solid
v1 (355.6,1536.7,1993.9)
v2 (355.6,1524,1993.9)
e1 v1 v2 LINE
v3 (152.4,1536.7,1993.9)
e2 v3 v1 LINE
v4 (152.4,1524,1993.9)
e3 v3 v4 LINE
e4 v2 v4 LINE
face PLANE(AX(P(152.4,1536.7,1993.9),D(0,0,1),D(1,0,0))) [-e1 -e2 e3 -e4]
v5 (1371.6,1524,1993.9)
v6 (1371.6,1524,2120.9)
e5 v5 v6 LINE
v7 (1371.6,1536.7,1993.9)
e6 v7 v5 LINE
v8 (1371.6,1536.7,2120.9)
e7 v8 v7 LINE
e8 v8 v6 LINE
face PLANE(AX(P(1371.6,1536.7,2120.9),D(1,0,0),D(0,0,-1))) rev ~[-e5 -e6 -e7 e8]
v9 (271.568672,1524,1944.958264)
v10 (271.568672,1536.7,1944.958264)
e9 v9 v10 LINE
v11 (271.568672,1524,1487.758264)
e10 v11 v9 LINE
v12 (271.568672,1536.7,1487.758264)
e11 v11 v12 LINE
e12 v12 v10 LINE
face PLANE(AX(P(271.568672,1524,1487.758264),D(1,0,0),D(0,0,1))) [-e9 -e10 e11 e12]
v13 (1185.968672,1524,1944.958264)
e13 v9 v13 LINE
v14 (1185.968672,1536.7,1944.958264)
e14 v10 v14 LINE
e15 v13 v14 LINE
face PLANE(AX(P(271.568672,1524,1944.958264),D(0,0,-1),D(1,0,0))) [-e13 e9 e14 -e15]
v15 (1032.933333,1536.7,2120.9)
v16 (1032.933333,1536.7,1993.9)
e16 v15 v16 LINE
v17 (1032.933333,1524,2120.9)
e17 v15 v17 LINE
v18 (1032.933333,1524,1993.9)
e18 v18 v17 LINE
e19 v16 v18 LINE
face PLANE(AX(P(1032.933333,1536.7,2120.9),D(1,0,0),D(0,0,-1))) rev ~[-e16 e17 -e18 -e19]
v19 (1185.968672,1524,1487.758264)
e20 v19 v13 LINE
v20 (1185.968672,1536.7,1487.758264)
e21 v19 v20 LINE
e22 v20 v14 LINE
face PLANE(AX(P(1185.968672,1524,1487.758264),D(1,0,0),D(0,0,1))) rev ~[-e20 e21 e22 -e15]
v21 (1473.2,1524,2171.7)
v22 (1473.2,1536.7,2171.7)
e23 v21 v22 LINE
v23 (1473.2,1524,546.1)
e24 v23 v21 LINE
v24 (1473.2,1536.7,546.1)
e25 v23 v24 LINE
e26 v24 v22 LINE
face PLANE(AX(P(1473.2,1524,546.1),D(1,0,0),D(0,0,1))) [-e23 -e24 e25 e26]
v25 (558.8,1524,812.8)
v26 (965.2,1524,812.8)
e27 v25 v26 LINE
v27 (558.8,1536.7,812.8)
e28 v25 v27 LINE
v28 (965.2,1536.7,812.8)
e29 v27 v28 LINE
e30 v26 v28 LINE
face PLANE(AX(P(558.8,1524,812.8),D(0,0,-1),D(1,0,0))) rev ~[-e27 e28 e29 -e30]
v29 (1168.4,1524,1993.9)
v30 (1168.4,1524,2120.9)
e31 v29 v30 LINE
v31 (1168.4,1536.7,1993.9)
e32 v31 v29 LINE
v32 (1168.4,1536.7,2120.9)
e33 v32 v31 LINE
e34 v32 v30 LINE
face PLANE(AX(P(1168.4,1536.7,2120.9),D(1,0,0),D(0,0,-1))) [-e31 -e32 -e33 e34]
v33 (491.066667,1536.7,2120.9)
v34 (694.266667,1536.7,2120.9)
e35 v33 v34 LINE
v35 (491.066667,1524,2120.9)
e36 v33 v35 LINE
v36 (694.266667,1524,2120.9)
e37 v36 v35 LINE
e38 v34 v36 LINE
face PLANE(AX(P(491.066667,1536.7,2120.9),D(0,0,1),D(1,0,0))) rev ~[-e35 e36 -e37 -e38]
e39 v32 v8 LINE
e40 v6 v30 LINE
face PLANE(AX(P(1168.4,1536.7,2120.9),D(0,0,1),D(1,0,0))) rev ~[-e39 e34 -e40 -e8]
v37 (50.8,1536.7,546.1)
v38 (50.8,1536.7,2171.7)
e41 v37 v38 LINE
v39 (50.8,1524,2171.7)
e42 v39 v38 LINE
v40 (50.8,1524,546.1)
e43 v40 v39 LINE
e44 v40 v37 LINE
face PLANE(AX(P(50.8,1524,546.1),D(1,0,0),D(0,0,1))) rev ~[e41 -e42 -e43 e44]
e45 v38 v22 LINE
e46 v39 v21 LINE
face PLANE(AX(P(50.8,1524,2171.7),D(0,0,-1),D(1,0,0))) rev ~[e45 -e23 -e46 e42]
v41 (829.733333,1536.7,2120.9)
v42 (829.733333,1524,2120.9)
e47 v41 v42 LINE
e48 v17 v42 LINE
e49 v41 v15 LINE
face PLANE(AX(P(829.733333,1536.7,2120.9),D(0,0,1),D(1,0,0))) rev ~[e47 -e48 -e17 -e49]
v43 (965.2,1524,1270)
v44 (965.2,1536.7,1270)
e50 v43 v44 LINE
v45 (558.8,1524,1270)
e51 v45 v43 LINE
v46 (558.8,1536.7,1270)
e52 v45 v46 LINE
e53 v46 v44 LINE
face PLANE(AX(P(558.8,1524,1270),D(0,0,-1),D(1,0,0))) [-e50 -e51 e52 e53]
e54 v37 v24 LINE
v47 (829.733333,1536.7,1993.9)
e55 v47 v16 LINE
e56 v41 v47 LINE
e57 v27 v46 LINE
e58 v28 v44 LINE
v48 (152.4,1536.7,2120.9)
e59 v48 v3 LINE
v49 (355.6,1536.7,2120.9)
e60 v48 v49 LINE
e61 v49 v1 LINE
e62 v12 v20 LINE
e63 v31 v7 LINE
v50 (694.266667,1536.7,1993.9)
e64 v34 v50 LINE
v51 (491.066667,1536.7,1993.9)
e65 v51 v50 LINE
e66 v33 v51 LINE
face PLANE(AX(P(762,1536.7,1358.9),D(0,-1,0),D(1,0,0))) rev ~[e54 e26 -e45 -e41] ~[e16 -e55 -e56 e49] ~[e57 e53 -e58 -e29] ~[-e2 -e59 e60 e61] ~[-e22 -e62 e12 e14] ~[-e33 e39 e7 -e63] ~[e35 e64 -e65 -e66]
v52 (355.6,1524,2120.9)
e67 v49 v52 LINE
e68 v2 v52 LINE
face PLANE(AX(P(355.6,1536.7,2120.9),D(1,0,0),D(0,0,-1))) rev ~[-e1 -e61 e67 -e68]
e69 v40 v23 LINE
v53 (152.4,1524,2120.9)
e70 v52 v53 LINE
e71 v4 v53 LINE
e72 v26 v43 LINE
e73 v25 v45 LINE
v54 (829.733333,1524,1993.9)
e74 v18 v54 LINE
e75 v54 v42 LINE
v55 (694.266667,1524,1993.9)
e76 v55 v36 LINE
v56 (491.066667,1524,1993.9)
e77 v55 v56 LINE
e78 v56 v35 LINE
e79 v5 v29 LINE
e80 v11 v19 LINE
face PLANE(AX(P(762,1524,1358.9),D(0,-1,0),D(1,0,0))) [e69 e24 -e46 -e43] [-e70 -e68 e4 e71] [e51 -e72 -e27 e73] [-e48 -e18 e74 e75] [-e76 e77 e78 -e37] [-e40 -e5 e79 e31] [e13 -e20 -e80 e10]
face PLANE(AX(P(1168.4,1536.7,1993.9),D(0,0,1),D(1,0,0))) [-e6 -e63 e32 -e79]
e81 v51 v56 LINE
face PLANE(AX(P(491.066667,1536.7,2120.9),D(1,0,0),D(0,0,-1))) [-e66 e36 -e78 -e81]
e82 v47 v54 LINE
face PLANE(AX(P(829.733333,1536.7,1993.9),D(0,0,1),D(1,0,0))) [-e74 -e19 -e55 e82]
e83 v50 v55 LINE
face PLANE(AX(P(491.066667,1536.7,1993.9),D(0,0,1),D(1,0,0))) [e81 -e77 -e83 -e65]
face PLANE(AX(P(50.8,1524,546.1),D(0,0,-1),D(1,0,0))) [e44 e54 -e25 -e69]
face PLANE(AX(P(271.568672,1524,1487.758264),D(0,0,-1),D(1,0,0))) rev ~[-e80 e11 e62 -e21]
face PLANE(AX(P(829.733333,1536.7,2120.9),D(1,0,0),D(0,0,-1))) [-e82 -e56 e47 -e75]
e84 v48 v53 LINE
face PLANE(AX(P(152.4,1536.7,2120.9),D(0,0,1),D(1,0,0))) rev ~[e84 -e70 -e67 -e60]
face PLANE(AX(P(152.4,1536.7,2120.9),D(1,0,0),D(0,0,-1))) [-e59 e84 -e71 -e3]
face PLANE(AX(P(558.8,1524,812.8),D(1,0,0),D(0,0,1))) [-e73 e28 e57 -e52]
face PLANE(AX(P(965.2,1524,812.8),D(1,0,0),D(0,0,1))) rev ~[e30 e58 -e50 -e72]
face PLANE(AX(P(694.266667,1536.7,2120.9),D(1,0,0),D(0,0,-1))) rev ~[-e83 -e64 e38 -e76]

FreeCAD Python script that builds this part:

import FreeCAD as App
import Part
import Sketcher
Q = App.Units.Quantity


def add_polygon(sketch, points):
    """Adds a closed chain of lines whose ends are joined by coincident constraints."""
    first, n = sketch.GeometryCount, len(points)
    for a, b in zip(points, points[1:] + points[:1]):
        sketch.addGeometry(Part.LineSegment(App.Vector(*a, 0), App.Vector(*b, 0)), False)
    for i in range(n):
        sketch.addConstraint(Sketcher.Constraint("Coincident", first + i, 2, first + (i + 1) % n, 1))

doc = App.newDocument("Part")
params = doc.addObject("Spreadsheet::Sheet", "Params")
for row, (alias, value) in enumerate([
    ("sketch1_width", "56 in"),
    ("sketch1_width2", "16 in"),
    ("sketch1_width3", "36 in"),
    ("sketch1_height", "64 in"),
    ("sketch1_height2", "18 in"),
    ("pad1_length", "0.5 in"),
    ("sketch2_width", "8 in"),
    ("sketch2_height", "5 in"),
    ("linearpattern_pitch", "338.666667 mm"),
], start=1):
    params.set(f"A{row}", alias)
    params.set(f"B{row}", "=" + value)
    params.setAlias(f"B{row}", alias)

body = doc.addObject("PartDesign::Body", "Body")

sketch1 = doc.addObject("Sketcher::SketchObject", "Sketch")
body.addObject(sketch1)
sketch1.AttachmentSupport = (doc.XZ_Plane, [""])
sketch1.MapMode = "FlatFace"
sketch1.AttachmentOffset = App.Placement(App.Vector(0, 0, -60 * 25.4), App.Rotation())
add_polygon(sketch1, [(51, 2172), (51, 546), (1473, 546), (1473, 2172)])
add_polygon(sketch1, [(965, 813), (559, 813), (559, 1270), (965, 1270)])
add_polygon(sketch1, [(1186, 1488), (272, 1488), (272, 1945), (1186, 1945)])
sketch1.addConstraint([
    Sketcher.Constraint("Vertical", 0),
    Sketcher.Constraint("Horizontal", 1),
    Sketcher.Constraint("Vertical", 2),
    Sketcher.Constraint("Horizontal", 3),
    Sketcher.Constraint("Horizontal", 4),
    Sketcher.Constraint("Vertical", 5),
    Sketcher.Constraint("Horizontal", 6),
    Sketcher.Constraint("Vertical", 7),
    Sketcher.Constraint("Horizontal", 8),
    Sketcher.Constraint("Vertical", 9),
    Sketcher.Constraint("Horizontal", 10),
    Sketcher.Constraint("Vertical", 11),
    Sketcher.Constraint("Equal", 7, 9),
    Sketcher.Constraint("DistanceX", 1, 1, 1, 2, Q("56 in")),
    Sketcher.Constraint("DistanceX", 4, 2, 4, 1, Q("16 in")),
    Sketcher.Constraint("DistanceX", 8, 2, 8, 1, Q("36 in")),
    Sketcher.Constraint("DistanceY", 0, 2, 0, 1, Q("64 in")),
    Sketcher.Constraint("DistanceY", 5, 1, 5, 2, Q("18 in")),
    Sketcher.Constraint("DistanceX", -1, 1, 0, 2, Q("2 in")),
    Sketcher.Constraint("DistanceX", -1, 1, 4, 2, Q("22 in")),
    Sketcher.Constraint("DistanceY", -1, 1, 4, 2, Q("32 in")),
    Sketcher.Constraint("DistanceY", -1, 1, 0, 2, Q("21.5 in")),
    Sketcher.Constraint("DistanceX", -1, 1, 8, 2, Q("271.568672 mm")),
    Sketcher.Constraint("DistanceY", -1, 1, 8, 2, Q("1487.758264 mm")),
])
sketch1.setExpression("Constraints[25]", "Params.sketch1_width")
sketch1.setExpression("Constraints[26]", "Params.sketch1_width2")
sketch1.setExpression("Constraints[27]", "Params.sketch1_width3")
sketch1.setExpression("Constraints[28]", "Params.sketch1_height")
sketch1.setExpression("Constraints[29]", "Params.sketch1_height2")
pad1 = doc.addObject("PartDesign::Pad", "Pad")
body.addObject(pad1)
pad1.Profile = sketch1
pad1.setExpression("Length", "Params.pad1_length")
pad1.Reversed = True

sketch2 = doc.addObject("Sketcher::SketchObject", "Sketch001")
body.addObject(sketch2)
sketch2.AttachmentSupport = (doc.XZ_Plane, [""])
sketch2.MapMode = "FlatFace"
sketch2.AttachmentOffset = App.Placement(App.Vector(0, 0, -60.5 * 25.4), App.Rotation())
add_polygon(sketch2, [(152, 1994), (152, 2121), (356, 2121), (356, 1994)])
sketch2.addConstraint([
    Sketcher.Constraint("Vertical", 0),
    Sketcher.Constraint("Horizontal", 1),
    Sketcher.Constraint("Vertical", 2),
    Sketcher.Constraint("Horizontal", 3),
    Sketcher.Constraint("DistanceX", 1, 1, 1, 2, Q("8 in")),
    Sketcher.Constraint("DistanceY", 0, 1, 0, 2, Q("5 in")),
    Sketcher.Constraint("DistanceX", -1, 1, 0, 2, Q("6 in")),
    Sketcher.Constraint("DistanceY", -1, 1, 0, 2, Q("83.5 in")),
])
sketch2.setExpression("Constraints[8]", "Params.sketch2_width")
sketch2.setExpression("Constraints[9]", "Params.sketch2_height")
pocket1 = doc.addObject("PartDesign::Pocket", "Pocket")
body.addObject(pocket1)
pocket1.Profile = sketch2
pocket1.Type = "ThroughAll"
pocket1.Reversed = True
doc.recompute()

linearpattern = doc.addObject("PartDesign::LinearPattern", "LinearPattern")
body.addObject(linearpattern)
linearpattern.Originals = [pocket1]
linearpattern.Direction = (doc.X_Axis, [""])
linearpattern.Mode = "offset"
linearpattern.setExpression("Offset", "Params.linearpattern_pitch")
linearpattern.Occurrences = 4
body.Tip = linearpattern

doc.recompute()
